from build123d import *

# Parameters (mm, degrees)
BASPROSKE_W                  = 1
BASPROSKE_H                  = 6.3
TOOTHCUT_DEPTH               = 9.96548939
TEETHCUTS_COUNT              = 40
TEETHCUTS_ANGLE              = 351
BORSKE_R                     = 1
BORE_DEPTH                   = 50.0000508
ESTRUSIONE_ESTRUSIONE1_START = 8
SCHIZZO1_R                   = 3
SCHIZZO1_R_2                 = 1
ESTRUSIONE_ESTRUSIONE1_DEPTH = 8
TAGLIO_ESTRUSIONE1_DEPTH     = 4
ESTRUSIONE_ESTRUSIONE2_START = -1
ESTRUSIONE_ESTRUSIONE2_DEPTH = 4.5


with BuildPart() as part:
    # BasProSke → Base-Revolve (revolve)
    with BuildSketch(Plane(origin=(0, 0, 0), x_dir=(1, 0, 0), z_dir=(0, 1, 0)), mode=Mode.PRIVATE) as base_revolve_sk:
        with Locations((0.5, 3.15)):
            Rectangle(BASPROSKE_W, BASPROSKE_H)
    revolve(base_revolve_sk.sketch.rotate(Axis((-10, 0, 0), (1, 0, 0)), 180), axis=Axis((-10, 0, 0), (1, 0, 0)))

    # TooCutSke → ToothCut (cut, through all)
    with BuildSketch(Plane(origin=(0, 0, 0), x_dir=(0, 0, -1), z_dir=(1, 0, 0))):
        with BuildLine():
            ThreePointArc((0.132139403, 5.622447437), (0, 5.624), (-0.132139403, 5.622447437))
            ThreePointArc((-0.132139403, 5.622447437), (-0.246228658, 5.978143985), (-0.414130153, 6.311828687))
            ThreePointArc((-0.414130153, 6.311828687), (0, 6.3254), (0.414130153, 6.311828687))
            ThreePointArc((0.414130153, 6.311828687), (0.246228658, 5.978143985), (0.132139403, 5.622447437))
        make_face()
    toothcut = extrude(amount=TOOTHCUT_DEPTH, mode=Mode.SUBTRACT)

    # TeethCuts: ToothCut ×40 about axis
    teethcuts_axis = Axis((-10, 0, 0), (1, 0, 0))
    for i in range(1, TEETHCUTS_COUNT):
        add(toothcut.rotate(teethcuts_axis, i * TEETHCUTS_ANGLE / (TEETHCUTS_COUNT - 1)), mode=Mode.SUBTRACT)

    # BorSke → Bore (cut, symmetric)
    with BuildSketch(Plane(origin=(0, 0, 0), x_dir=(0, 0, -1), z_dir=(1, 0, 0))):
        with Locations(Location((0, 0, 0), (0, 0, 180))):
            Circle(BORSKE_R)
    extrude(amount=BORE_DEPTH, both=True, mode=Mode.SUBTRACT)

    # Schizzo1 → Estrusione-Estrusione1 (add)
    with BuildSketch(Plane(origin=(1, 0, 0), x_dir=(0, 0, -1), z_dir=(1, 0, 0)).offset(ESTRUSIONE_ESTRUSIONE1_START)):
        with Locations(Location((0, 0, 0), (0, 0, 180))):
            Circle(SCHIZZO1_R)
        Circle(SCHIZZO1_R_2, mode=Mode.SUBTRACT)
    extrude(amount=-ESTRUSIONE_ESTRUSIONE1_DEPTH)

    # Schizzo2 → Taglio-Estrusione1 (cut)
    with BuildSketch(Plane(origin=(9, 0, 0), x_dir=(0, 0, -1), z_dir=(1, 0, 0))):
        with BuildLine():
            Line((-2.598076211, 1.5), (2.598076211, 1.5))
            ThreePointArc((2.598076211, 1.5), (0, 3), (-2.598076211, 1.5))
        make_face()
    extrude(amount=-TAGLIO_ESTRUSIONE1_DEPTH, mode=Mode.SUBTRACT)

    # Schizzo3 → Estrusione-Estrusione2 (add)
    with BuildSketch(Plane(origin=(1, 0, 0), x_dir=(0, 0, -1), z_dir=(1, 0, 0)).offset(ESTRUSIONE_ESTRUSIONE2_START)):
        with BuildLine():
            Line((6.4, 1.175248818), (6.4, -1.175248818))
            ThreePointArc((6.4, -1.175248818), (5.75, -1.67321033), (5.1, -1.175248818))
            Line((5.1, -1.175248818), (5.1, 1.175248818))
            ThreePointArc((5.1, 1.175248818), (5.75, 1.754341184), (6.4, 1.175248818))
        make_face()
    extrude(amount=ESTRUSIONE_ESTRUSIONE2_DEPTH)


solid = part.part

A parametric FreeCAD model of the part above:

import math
import FreeCAD as App
import Part
import Sketcher
Q = App.Units.Quantity


def add_polygon(sketch, points):
    """Adds a closed chain of lines whose ends are joined by coincident constraints."""
    first, n = sketch.GeometryCount, len(points)
    for a, b in zip(points, points[1:] + points[:1]):
        sketch.addGeometry(Part.LineSegment(App.Vector(*a, 0), App.Vector(*b, 0)), False)
    for i in range(n):
        sketch.addConstraint(Sketcher.Constraint("Coincident", first + i, 2, first + (i + 1) % n, 1))

doc = App.newDocument("Part")
params = doc.addObject("Spreadsheet::Sheet", "Params")
for row, (alias, value) in enumerate([
    ("sketch1_width", "1 mm"),
    ("sketch1_height", "6.3 mm"),
    ("revolution_angle", "360 deg"),
    ("sketch2_radius", "2.4 mm"),
    ("sketch3_diameter", "2 mm"),
    ("pocket2_length", "100.000102 mm"),
    ("sketch4_diameter", "6 mm"),
    ("sketch4_diameter2", "2 mm"),
    ("pad1_length", "8 mm"),
    ("sketch5_radius", "3 mm"),
    ("pocket3_length", "4 mm"),
    ("pad2_length", "4.5 mm"),
], start=1):
    params.set(f"A{row}", alias)
    params.set(f"B{row}", "=" + value)
    params.setAlias(f"B{row}", alias)

body = doc.addObject("PartDesign::Body", "Body")

# Sketch on XZ plane
sketch1 = body.newObject("Sketcher::SketchObject", "Sketch")
sketch1.AttachmentSupport = (doc.getObject("XZ_Plane"), [""])
sketch1.MapMode = "FlatFace"
add_polygon(sketch1, [(0, -6.3), (0, 0), (1, 0), (1, -6.3)])  # lines 0-3
sketch1.addConstraint([
    Sketcher.Constraint("Vertical", 0),
    Sketcher.Constraint("Horizontal", 1),
    Sketcher.Constraint("Vertical", 2),
    Sketcher.Constraint("Horizontal", 3),
    Sketcher.Constraint("Coincident", 0, 2, -1, 1),
    Sketcher.Constraint("DistanceX", 1, 1, 1, 2, Q("1 mm")),
    Sketcher.Constraint("DistanceY", 0, 1, 0, 2, Q("6.3 mm")),
])
sketch1.setExpression("Constraints[9]", "Params.sketch1_width")
sketch1.setExpression("Constraints[10]", "Params.sketch1_height")
revolution = body.newObject("PartDesign::Revolution", "Revolution")
revolution.Profile = sketch1
revolution.ReferenceAxis = (sketch1, ["H_Axis"])
revolution.setExpression("Angle", "Params.revolution_angle")

# Sketch on YZ plane
sketch2 = body.newObject("Sketcher::SketchObject", "Sketch001")
sketch2.AttachmentSupport = (doc.getObject("YZ_Plane"), [""])
sketch2.MapMode = "FlatFace"
sketch2.addGeometry([
    Part.ArcOfCircle(Part.Circle(App.Vector(0, 0, 0), App.Vector(0, 0, 1), 5.62), math.radians(-1.35), math.radians(1.35)),
    Part.ArcOfCircle(Part.Circle(App.Vector(5.07, -2.47, 0), App.Vector(0, 0, 1), 2.4), math.radians(58.83), math.radians(76.68)),
    Part.ArcOfCircle(Part.Circle(App.Vector(0, 0, 0), App.Vector(0, 0, 1), 6.33), math.radians(-3.75), math.radians(3.75)),
    Part.ArcOfCircle(Part.Circle(App.Vector(5.07, 2.47, 0), App.Vector(0, 0, 1), 2.4), math.radians(-76.68), math.radians(-58.83)),
], False)
sketch2.addConstraint([
    Sketcher.Constraint("Coincident", 0, 1, 1, 2),
    Sketcher.Constraint("Coincident", 1, 1, 2, 1),
    Sketcher.Constraint("Coincident", 2, 2, 3, 2),
    Sketcher.Constraint("Coincident", 3, 1, 0, 2),
    Sketcher.Constraint("Coincident", 0, 3, -1, 1),
    Sketcher.Constraint("Coincident", 2, 3, -1, 1),
    Sketcher.Constraint("Equal", 1, 3),
    Sketcher.Constraint("Symmetric", 1, 3, 3, 3, -1),
    Sketcher.Constraint("Radius", 1, Q("2.4 mm")),
    Sketcher.Constraint("Radius", 0, Q("5.624001 mm")),
    Sketcher.Constraint("Radius", 2, Q("6.3254 mm")),
    Sketcher.Constraint("DistanceY", 0, 1, -1, 1, Q("0.132139 mm")),
    Sketcher.Constraint("DistanceX", -1, 1, 1, 1, Q("6.311829 mm")),
])
sketch2.setExpression("Constraints[8]", "Params.sketch2_radius")
pocket1 = body.newObject("PartDesign::Pocket", "Pocket")
pocket1.Profile = sketch2
pocket1.Type = "ThroughAll"
pocket1.Reversed = True
doc.recompute()

polarpattern = body.newObject("PartDesign::PolarPattern", "PolarPattern")
polarpattern.Originals = [pocket1]
polarpattern.Axis = (doc.getObject("X_Axis"), [""])
polarpattern.Angle = 360
polarpattern.Occurrences = 40
body.Tip = polarpattern

# Sketch on YZ plane
sketch3 = body.newObject("Sketcher::SketchObject", "Sketch002")
sketch3.AttachmentSupport = (doc.getObject("YZ_Plane"), [""])
sketch3.MapMode = "FlatFace"
sketch3.addGeometry(Part.Circle(App.Vector(0, 0, 0), App.Vector(0, 0, 1), 1), False)
sketch3.addConstraint([
    Sketcher.Constraint("Coincident", 0, 3, -1, 1),
    Sketcher.Constraint("Diameter", 0, Q("2 mm")),
])
sketch3.setExpression("Constraints[1]", "Params.sketch3_diameter")
pocket2 = body.newObject("PartDesign::Pocket", "Pocket001")
pocket2.Profile = sketch3
pocket2.setExpression("Length", "Params.pocket2_length")
pocket2.Midplane = True

# Sketch on YZ plane
sketch4 = body.newObject("Sketcher::SketchObject", "Sketch003")
sketch4.AttachmentSupport = (doc.getObject("YZ_Plane"), [""])
sketch4.MapMode = "FlatFace"
sketch4.AttachmentOffset = App.Placement(App.Vector(0, 0, 9), App.Rotation())
sketch4.addGeometry([
    Part.Circle(App.Vector(0, 0, 0), App.Vector(0, 0, 1), 3),
    Part.Circle(App.Vector(0, 0, 0), App.Vector(0, 0, 1), 1),
], False)
sketch4.addConstraint([
    Sketcher.Constraint("Coincident", 0, 3, -1, 1),
    Sketcher.Constraint("Coincident", 1, 3, -1, 1),
    Sketcher.Constraint("Diameter", 0, Q("6 mm")),
    Sketcher.Constraint("Diameter", 1, Q("2 mm")),
])
sketch4.setExpression("Constraints[2]", "Params.sketch4_diameter")
sketch4.setExpression("Constraints[3]", "Params.sketch4_diameter2")
pad1 = body.newObject("PartDesign::Pad", "Pad")
pad1.Profile = sketch4
pad1.setExpression("Length", "Params.pad1_length")
pad1.Reversed = True

# Sketch on YZ plane
sketch5 = body.newObject("Sketcher::SketchObject", "Sketch004")
sketch5.AttachmentSupport = (doc.getObject("YZ_Plane"), [""])
sketch5.MapMode = "FlatFace"
sketch5.AttachmentOffset = App.Placement(App.Vector(0, 0, 9), App.Rotation())
sketch5.addGeometry([
    Part.LineSegment(App.Vector(1.5, 2.6, 0), App.Vector(1.5, -2.6, 0)),
    Part.ArcOfCircle(Part.Circle(App.Vector(0, 0, 0), App.Vector(0, 0, 1), 3), math.radians(-60), math.radians(60)),
], False)
sketch5.addConstraint([
    Sketcher.Constraint("Coincident", 0, 1, 1, 2),
    Sketcher.Constraint("Coincident", 1, 1, 0, 2),
    Sketcher.Constraint("Vertical", 0),
    Sketcher.Constraint("Coincident", 1, 3, -1, 1),
    Sketcher.Constraint("Radius", 1, Q("3 mm")),
    Sketcher.Constraint("DistanceX", -1, 1, 0, 1, Q("1.5 mm")),
])
sketch5.setExpression("Constraints[4]", "Params.sketch5_radius")
pocket3 = body.newObject("PartDesign::Pocket", "Pocket002")
pocket3.Profile = sketch5
pocket3.setExpression("Length", "Params.pocket3_length")

# Sketch on YZ plane
sketch6 = body.newObject("Sketcher::SketchObject", "Sketch005")
sketch6.AttachmentSupport = (doc.getObject("YZ_Plane"), [""])
sketch6.MapMode = "FlatFace"
sketch6.addGeometry([
    Part.LineSegment(App.Vector(-1.2, -6.4, 0), App.Vector(1.2, -6.4, 0)),
    Part.ArcOfCircle(Part.Circle(App.Vector(1.1, -5.8, 0), App.Vector(0, 0, 1), 0.7), math.radians(-83), math.radians(83)),
    Part.LineSegment(App.Vector(1.2, -5.1, 0), App.Vector(-1.2, -5.1, 0)),
    Part.ArcOfCircle(Part.Circle(App.Vector(-1, -5.8, 0), App.Vector(0, 0, 1), 0.7), math.radians(105), math.radians(255)),
], False)
sketch6.addConstraint([
    Sketcher.Constraint("Coincident", 0, 2, 1, 1),
    Sketcher.Constraint("Coincident", 1, 2, 2, 1),
    Sketcher.Constraint("Coincident", 2, 2, 3, 1),
    Sketcher.Constraint("Coincident", 3, 2, 0, 1),
    Sketcher.Constraint("Horizontal", 0),
    Sketcher.Constraint("Horizontal", 2),
    Sketcher.Constraint("Horizontal", 1, 3, 3, 3),
    Sketcher.Constraint("Vertical", 0, 2, 1, 2),
    Sketcher.Constraint("DistanceX", 3, 3, -1, 1, Q("1 mm")),
    Sketcher.Constraint("DistanceX", -1, 1, 1, 3, Q("1.1 mm")),
    Sketcher.Constraint("DistanceY", 0, 2, -1, 1, Q("6.4 mm")),
    Sketcher.Constraint("DistanceY", 1, 2, -1, 1, Q("5.1 mm")),
    Sketcher.Constraint("Radius", 1, Q("0.654341 mm")),
    Sketcher.Constraint("Radius", 3, Q("0.67321 mm")),
])
pad2 = body.newObject("PartDesign::Pad", "Pad001")
pad2.Profile = sketch6
pad2.setExpression("Length", "Params.pad2_length")

doc.recompute()
